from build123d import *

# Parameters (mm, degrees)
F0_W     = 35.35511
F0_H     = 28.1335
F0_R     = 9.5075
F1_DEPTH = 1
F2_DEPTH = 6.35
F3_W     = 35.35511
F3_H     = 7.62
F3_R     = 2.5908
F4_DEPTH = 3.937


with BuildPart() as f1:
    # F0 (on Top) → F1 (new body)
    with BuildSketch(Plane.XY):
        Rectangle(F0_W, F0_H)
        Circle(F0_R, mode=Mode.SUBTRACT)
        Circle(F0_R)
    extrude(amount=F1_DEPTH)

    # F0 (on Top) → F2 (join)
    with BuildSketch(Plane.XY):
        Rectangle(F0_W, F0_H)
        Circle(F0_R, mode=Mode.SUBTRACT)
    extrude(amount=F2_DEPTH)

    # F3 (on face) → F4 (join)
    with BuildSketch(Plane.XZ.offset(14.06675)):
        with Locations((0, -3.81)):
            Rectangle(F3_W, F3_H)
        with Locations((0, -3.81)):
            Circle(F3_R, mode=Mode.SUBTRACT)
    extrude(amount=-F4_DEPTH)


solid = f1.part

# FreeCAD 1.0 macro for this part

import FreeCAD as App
import Part
import Sketcher
from FreeCAD import Vector
Q = App.Units.Quantity


def add_polygon(sketch, points):
    """Adds a closed chain of lines whose ends are joined by coincident constraints."""
    first, n = sketch.GeometryCount, len(points)
    for a, b in zip(points, points[1:] + points[:1]):
        sketch.addGeometry(Part.LineSegment(App.Vector(*a, 0), App.Vector(*b, 0)), False)
    for i in range(n):
        sketch.addConstraint(Sketcher.Constraint("Coincident", first + i, 2, first + (i + 1) % n, 1))

doc = App.newDocument("Part")
params = doc.addObject("Spreadsheet::Sheet", "Params")
for row, (alias, value) in enumerate([
    ("pad1_length", "1 mm"),
    ("pad2_length", "0.25 in"),
    ("sketch3_diameter", "0.204 in"),
    ("sketch3_height", "0.3 in"),
    ("pad3_length", "0.155 in"),
], start=1):
    params.set(f"A{row}", alias)
    params.set(f"B{row}", "=" + value)
    params.setAlias(f"B{row}", alias)

body = doc.addObject("PartDesign::Body", "Body")

# Sketch on XY plane
sketch1 = doc.addObject("Sketcher::SketchObject", "Sketch")
body.addObject(sketch1)
sketch1.AttachmentSupport = (doc.XY_Plane, [""])
sketch1.MapMode = "FlatFace"
add_polygon(sketch1, [(-18, 14), (-18, -14), (18, -14), (18, 14)])  # lines 0-3
sketch1.addConstraint([
    Sketcher.Constraint("Vertical", 0),
    Sketcher.Constraint("Horizontal", 1),
    Sketcher.Constraint("Vertical", 2),
    Sketcher.Constraint("Horizontal", 3),
    Sketcher.Constraint("Symmetric", 0, 2, 2, 2, -1, 1),
    Sketcher.Constraint("DistanceY", 0, 2, 0, 1, 28.1335),
    Sketcher.Constraint("DistanceX", 1, 1, 1, 2, 35.35511),
])
pad1 = doc.addObject("PartDesign::Pad", "Pad")
body.addObject(pad1)
pad1.Profile = sketch1
pad1.setExpression("Length", "Params.pad1_length")

# Sketch on XY plane
sketch2 = doc.addObject("Sketcher::SketchObject", "Sketch001")
body.addObject(sketch2)
sketch2.AttachmentSupport = (doc.XY_Plane, [""])
sketch2.MapMode = "FlatFace"
add_polygon(sketch2, [(-18, 14), (-18, -14), (18, -14), (18, 14)])  # lines 0-3
sketch2.addGeometry(Part.Circle(Vector(0, 0, 0), Vector(0, 0, 1), 10), False)  # 4
sketch2.addConstraint([
    Sketcher.Constraint("Vertical", 0),
    Sketcher.Constraint("Horizontal", 1),
    Sketcher.Constraint("Vertical", 2),
    Sketcher.Constraint("Horizontal", 3),
    Sketcher.Constraint("Coincident", 4, 3, -1, 1),
    Sketcher.Constraint("Symmetric", 0, 2, 2, 2, -1, 1),
    Sketcher.Constraint("Diameter", 4, 19.015),
    Sketcher.Constraint("DistanceY", 0, 2, 0, 1, 28.1335),
    Sketcher.Constraint("DistanceX", 1, 1, 1, 2, 35.35511),
])
pad2 = doc.addObject("PartDesign::Pad", "Pad001")
body.addObject(pad2)
pad2.Profile = sketch2
pad2.setExpression("Length", "Params.pad2_length")

# Sketch on XZ plane
sketch3 = doc.addObject("Sketcher::SketchObject", "Sketch002")
body.addObject(sketch3)
sketch3.AttachmentSupport = (doc.XZ_Plane, [""])
sketch3.MapMode = "FlatFace"
sketch3.AttachmentOffset = App.Placement(Vector(0, 0, 14.06675), App.Rotation())
add_polygon(sketch3, [(-17.7, 0), (-17.7, -7.6), (17.7, -7.6), (17.7, 0)])  # lines 0-3
sketch3.addGeometry(Part.Circle(Vector(0, -3.8, 0), Vector(0, 0, 1), 2.6), False)  # 4
sketch3.addConstraint([
    Sketcher.Constraint("Vertical", 0),
    Sketcher.Constraint("Horizontal", 1),
    Sketcher.Constraint("Vertical", 2),
    Sketcher.Constraint("Horizontal", 3),
    Sketcher.Constraint("Symmetric", 2, 2, 3, 2, -1, 1),
    Sketcher.Constraint("PointOnObject", 4, 3, -2),
    Sketcher.Constraint("Diameter", 4, Q("0.204 in")),
    Sketcher.Constraint("DistanceY", 0, 2, 0, 1, Q("0.3 in")),
    Sketcher.Constraint("DistanceY", 4, 3, -1, 1, Q("0.15 in")),
    Sketcher.Constraint("DistanceX", 1, 1, 1, 2, 35.35511),
])
sketch3.setExpression("Constraints[10]", "Params.sketch3_diameter")
sketch3.setExpression("Constraints[11]", "Params.sketch3_height")
pad3 = doc.addObject("PartDesign::Pad", "Pad002")
body.addObject(pad3)
pad3.Profile = sketch3
pad3.setExpression("Length", "Params.pad3_length")
pad3.Reversed = True

doc.recompute()
